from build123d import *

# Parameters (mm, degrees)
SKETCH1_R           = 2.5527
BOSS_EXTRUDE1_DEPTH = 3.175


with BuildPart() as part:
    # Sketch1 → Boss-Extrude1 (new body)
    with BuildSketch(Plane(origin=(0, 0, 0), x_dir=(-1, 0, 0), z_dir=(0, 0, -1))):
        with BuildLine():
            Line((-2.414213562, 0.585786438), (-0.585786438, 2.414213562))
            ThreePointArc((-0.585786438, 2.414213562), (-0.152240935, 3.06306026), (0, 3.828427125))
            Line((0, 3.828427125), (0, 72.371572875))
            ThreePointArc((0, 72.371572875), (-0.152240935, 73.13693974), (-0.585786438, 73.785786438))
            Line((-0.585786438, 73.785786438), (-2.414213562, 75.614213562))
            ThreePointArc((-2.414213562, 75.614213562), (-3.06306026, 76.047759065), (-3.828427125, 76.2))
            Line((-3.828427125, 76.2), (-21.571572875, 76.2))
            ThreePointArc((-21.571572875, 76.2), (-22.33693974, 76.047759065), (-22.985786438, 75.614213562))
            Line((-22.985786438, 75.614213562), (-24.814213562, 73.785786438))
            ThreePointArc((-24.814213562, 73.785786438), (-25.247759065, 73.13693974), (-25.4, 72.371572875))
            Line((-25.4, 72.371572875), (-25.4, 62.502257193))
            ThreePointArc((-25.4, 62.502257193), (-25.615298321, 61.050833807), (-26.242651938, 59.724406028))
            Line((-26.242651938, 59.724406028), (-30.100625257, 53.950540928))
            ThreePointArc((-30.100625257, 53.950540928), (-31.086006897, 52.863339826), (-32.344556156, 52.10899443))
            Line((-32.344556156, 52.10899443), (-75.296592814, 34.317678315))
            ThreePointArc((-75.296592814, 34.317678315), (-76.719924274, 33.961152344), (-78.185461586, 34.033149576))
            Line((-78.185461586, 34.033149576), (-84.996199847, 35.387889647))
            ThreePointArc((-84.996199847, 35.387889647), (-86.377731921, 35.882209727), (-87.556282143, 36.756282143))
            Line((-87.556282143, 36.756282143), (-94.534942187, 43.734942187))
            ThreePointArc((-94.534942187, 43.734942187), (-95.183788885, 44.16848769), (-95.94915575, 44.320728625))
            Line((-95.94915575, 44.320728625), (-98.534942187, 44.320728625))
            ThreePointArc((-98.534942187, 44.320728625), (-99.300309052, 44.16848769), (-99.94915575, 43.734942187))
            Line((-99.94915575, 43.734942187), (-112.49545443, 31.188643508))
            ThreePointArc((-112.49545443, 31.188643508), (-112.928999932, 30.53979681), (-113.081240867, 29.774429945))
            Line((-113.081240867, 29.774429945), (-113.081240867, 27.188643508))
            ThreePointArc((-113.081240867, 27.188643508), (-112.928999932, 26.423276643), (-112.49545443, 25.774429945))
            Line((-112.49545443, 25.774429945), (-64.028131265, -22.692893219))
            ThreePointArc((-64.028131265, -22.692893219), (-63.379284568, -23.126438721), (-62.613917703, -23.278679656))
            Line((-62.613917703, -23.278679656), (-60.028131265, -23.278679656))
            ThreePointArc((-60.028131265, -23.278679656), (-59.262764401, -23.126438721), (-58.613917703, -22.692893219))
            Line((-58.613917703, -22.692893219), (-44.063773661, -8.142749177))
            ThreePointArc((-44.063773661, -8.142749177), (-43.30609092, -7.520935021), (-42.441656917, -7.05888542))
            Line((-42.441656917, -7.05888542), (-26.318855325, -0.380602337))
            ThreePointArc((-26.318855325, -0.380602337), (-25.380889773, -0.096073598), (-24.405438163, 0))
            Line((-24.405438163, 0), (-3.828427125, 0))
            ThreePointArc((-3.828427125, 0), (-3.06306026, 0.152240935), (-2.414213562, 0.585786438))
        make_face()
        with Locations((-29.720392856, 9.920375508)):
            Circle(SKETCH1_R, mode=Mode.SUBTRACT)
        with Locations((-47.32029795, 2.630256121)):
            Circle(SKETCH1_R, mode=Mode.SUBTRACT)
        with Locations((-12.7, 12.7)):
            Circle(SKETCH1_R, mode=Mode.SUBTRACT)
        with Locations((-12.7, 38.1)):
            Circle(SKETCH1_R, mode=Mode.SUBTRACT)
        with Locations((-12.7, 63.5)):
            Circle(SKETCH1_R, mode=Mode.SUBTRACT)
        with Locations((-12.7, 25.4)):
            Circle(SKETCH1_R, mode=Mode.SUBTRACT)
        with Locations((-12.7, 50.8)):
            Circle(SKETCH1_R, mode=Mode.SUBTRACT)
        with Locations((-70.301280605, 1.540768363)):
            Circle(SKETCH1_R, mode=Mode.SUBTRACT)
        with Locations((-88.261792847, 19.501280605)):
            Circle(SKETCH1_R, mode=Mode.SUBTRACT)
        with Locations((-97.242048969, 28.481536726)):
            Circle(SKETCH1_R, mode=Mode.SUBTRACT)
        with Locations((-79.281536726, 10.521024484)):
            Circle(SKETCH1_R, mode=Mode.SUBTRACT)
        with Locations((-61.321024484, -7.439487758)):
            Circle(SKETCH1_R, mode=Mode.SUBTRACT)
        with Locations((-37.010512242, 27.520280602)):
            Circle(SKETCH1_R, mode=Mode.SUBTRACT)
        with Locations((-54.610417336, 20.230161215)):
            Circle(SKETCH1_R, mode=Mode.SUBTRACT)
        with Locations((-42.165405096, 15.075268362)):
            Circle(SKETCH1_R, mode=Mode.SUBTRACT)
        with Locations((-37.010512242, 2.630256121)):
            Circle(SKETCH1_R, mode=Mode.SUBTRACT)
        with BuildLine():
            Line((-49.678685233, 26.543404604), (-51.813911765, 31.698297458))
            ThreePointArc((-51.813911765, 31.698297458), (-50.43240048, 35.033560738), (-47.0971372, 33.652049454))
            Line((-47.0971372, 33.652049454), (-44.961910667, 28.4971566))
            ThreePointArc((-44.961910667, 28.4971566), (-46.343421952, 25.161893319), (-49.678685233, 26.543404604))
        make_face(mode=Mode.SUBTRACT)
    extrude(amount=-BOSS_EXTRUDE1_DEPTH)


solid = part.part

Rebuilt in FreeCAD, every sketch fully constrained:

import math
import FreeCAD as App
import Part
import Sketcher
from FreeCAD import Vector
Q = App.Units.Quantity

doc = App.newDocument("Part")
body = doc.addObject("PartDesign::Body", "Body")

# Sketch on XY plane
sketch1 = body.newObject("Sketcher::SketchObject", "Sketch")
sketch1.AttachmentSupport = (doc.getObject("XY_Plane"), [""])
sketch1.MapMode = "FlatFace"
sketch1.addGeometry([
    Part.LineSegment(Vector(2.4, 0.6, 0), Vector(0.6, 2.4, 0)),  # 0
    Part.ArcOfCircle(Part.Circle(Vector(2, 3.8, 0), Vector(0, 0, 1), 2), math.radians(180), math.radians(225)),  # 1
    Part.LineSegment(Vector(0, 3.8, 0), Vector(0, 72.4, 0)),  # 2
    Part.ArcOfCircle(Part.Circle(Vector(2, 72.4, 0), Vector(0, 0, 1), 2), math.radians(135), math.radians(180)),  # 3
    Part.LineSegment(Vector(0.6, 73.8, 0), Vector(2.4, 75.6, 0)),  # 4
    Part.ArcOfCircle(Part.Circle(Vector(3.8, 74.2, 0), Vector(0, 0, 1), 2), math.radians(90), math.radians(135)),  # 5
    Part.LineSegment(Vector(3.8, 76.2, 0), Vector(21.6, 76.2, 0)),  # 6
    Part.ArcOfCircle(Part.Circle(Vector(21.6, 74.2, 0), Vector(0, 0, 1), 2), math.radians(45), math.radians(90)),  # 7
    Part.LineSegment(Vector(23, 75.6, 0), Vector(24.8, 73.8, 0)),  # 8
    Part.ArcOfCircle(Part.Circle(Vector(23.4, 72.4, 0), Vector(0, 0, 1), 2), math.radians(0), math.radians(45)),  # 9
    Part.LineSegment(Vector(25.4, 72.4, 0), Vector(25.4, 62.5, 0)),  # 10
    Part.ArcOfCircle(Part.Circle(Vector(30.4, 62.5, 0), Vector(0, 0, 1), 5), math.radians(180), math.radians(214)),  # 11
    Part.LineSegment(Vector(26.2, 59.7, 0), Vector(30.1, 54, 0)),  # 12
    Part.ArcOfCircle(Part.Circle(Vector(34.3, 56.7, 0), Vector(0, 0, 1), 5), math.radians(-146), math.radians(-112)),  # 13
    Part.LineSegment(Vector(32.3, 52.1, 0), Vector(75.3, 34.3, 0)),  # 14
    Part.ArcOfCircle(Part.Circle(Vector(77.2, 38.9, 0), Vector(0, 0, 1), 5), math.radians(-113), math.radians(-79)),  # 15
    Part.LineSegment(Vector(78.2, 34, 0), Vector(85, 35.4, 0)),  # 16
    Part.ArcOfCircle(Part.Circle(Vector(84, 40.3, 0), Vector(0, 0, 1), 5), math.radians(-79), math.radians(-45)),  # 17
    Part.LineSegment(Vector(87.6, 36.8, 0), Vector(94.5, 43.7, 0)),  # 18
    Part.ArcOfCircle(Part.Circle(Vector(95.9, 42.3, 0), Vector(0, 0, 1), 2), math.radians(90), math.radians(135)),  # 19
    Part.LineSegment(Vector(95.9, 44.3, 0), Vector(98.5, 44.3, 0)),  # 20
    Part.ArcOfCircle(Part.Circle(Vector(98.5, 42.3, 0), Vector(0, 0, 1), 2), math.radians(45), math.radians(90)),  # 21
    Part.LineSegment(Vector(99.9, 43.7, 0), Vector(112.5, 31.2, 0)),  # 22
    Part.ArcOfCircle(Part.Circle(Vector(111.1, 29.8, 0), Vector(0, 0, 1), 2), math.radians(0), math.radians(45)),  # 23
    Part.LineSegment(Vector(113.1, 29.8, 0), Vector(113.1, 27.2, 0)),  # 24
    Part.ArcOfCircle(Part.Circle(Vector(111.1, 27.2, 0), Vector(0, 0, 1), 2), math.radians(-45), math.radians(0)),  # 25
    Part.LineSegment(Vector(112.5, 25.8, 0), Vector(64, -22.7, 0)),  # 26
    Part.ArcOfCircle(Part.Circle(Vector(62.6, -21.3, 0), Vector(0, 0, 1), 2), math.radians(-90), math.radians(-45)),  # 27
    Part.LineSegment(Vector(62.6, -23.3, 0), Vector(60, -23.3, 0)),  # 28
    Part.ArcOfCircle(Part.Circle(Vector(60, -21.3, 0), Vector(0, 0, 1), 2), math.radians(-135), math.radians(-90)),  # 29
    Part.LineSegment(Vector(58.6, -22.7, 0), Vector(44.1, -8.1, 0)),  # 30
    Part.ArcOfCircle(Part.Circle(Vector(40.5, -11.7, 0), Vector(0, 0, 1), 5), math.radians(45), math.radians(67)),  # 31
    Part.LineSegment(Vector(42.4, -7.1, 0), Vector(26.3, -0.4, 0)),  # 32
    Part.ArcOfCircle(Part.Circle(Vector(24.4, -5, 0), Vector(0, 0, 1), 5), math.radians(68), math.radians(90)),  # 33
    Part.LineSegment(Vector(24.4, 0, 0), Vector(3.8, 0, 0)),  # 34
    Part.ArcOfCircle(Part.Circle(Vector(3.8, 2, 0), Vector(0, 0, 1), 2), math.radians(-135), math.radians(-90)),  # 35
    Part.Circle(Vector(61.3, -7.4, 0), Vector(0, 0, 1), 2.6),  # 36
    Part.Circle(Vector(70.3, 1.5, 0), Vector(0, 0, 1), 2.6),  # 37
    Part.Circle(Vector(79.3, 10.5, 0), Vector(0, 0, 1), 2.6),  # 38
    Part.Circle(Vector(88.3, 19.5, 0), Vector(0, 0, 1), 2.6),  # 39
    Part.Circle(Vector(47.3, 2.6, 0), Vector(0, 0, 1), 2.6),  # 40
    Part.Circle(Vector(37, 2.6, 0), Vector(0, 0, 1), 2.6),  # 41
    Part.Circle(Vector(42.2, 15.1, 0), Vector(0, 0, 1), 2.6),  # 42
    Part.Circle(Vector(54.6, 20.2, 0), Vector(0, 0, 1), 2.6),  # 43
    Part.Circle(Vector(37, 27.5, 0), Vector(0, 0, 1), 2.6),  # 44
    Part.Circle(Vector(29.7, 9.9, 0), Vector(0, 0, 1), 2.6),  # 45
    Part.Circle(Vector(12.7, 12.7, 0), Vector(0, 0, 1), 2.6),  # 46
    Part.Circle(Vector(12.7, 25.4, 0), Vector(0, 0, 1), 2.6),  # 47
    Part.Circle(Vector(97.2, 28.5, 0), Vector(0, 0, 1), 2.6),  # 48
    Part.ArcOfCircle(Part.Circle(Vector(47.3, 27.5, 0), Vector(0, 0, 1), 2.6), math.radians(157), math.radians(337)),  # 49
    Part.LineSegment(Vector(49.7, 26.5, 0), Vector(51.8, 31.7, 0)),  # 50
    Part.ArcOfCircle(Part.Circle(Vector(49.5, 32.7, 0), Vector(0, 0, 1), 2.6), math.radians(-22), math.radians(157)),  # 51
    Part.LineSegment(Vector(47.1, 33.7, 0), Vector(45, 28.5, 0)),  # 52
    Part.Circle(Vector(12.7, 38.1, 0), Vector(0, 0, 1), 2.6),  # 53
    Part.Circle(Vector(12.7, 50.8, 0), Vector(0, 0, 1), 2.6),  # 54
    Part.Circle(Vector(12.7, 63.5, 0), Vector(0, 0, 1), 2.6),  # 55
], False)
sketch1.addConstraint([
    Sketcher.Constraint("Tangent", 0, 2, 1, 2),
    Sketcher.Constraint("Tangent", 1, 1, 2, 1),
    Sketcher.Constraint("Tangent", 2, 2, 3, 2),
    Sketcher.Constraint("Tangent", 3, 1, 4, 1),
    Sketcher.Constraint("Tangent", 4, 2, 5, 2),
    Sketcher.Constraint("Tangent", 5, 1, 6, 1),
    Sketcher.Constraint("Tangent", 6, 2, 7, 2),
    Sketcher.Constraint("Tangent", 7, 1, 8, 1),
    Sketcher.Constraint("Tangent", 8, 2, 9, 2),
    Sketcher.Constraint("Tangent", 9, 1, 10, 1),
    Sketcher.Constraint("Tangent", 10, 2, 11, 1),
    Sketcher.Constraint("Tangent", 11, 2, 12, 1),
    Sketcher.Constraint("Tangent", 12, 2, 13, 1),
    Sketcher.Constraint("Tangent", 13, 2, 14, 1),
    Sketcher.Constraint("Tangent", 14, 2, 15, 1),
    Sketcher.Constraint("Tangent", 15, 2, 16, 1),
    Sketcher.Constraint("Tangent", 16, 2, 17, 1),
    Sketcher.Constraint("Tangent", 17, 2, 18, 1),
    Sketcher.Constraint("Tangent", 18, 2, 19, 2),
    Sketcher.Constraint("Tangent", 19, 1, 20, 1),
    Sketcher.Constraint("Tangent", 20, 2, 21, 2),
    Sketcher.Constraint("Tangent", 21, 1, 22, 1),
    Sketcher.Constraint("Tangent", 22, 2, 23, 2),
    Sketcher.Constraint("Tangent", 23, 1, 24, 1),
    Sketcher.Constraint("Tangent", 24, 2, 25, 2),
    Sketcher.Constraint("Tangent", 25, 1, 26, 1),
    Sketcher.Constraint("Tangent", 26, 2, 27, 2),
    Sketcher.Constraint("Tangent", 27, 1, 28, 1),
    Sketcher.Constraint("Tangent", 28, 2, 29, 2),
    Sketcher.Constraint("Tangent", 29, 1, 30, 1),
    Sketcher.Constraint("Tangent", 30, 2, 31, 1),
    Sketcher.Constraint("Tangent", 31, 2, 32, 1),
    Sketcher.Constraint("Tangent", 32, 2, 33, 1),
    Sketcher.Constraint("Tangent", 33, 2, 34, 1),
    Sketcher.Constraint("Tangent", 34, 2, 35, 2),
    Sketcher.Constraint("Tangent", 35, 1, 0, 1),
    Sketcher.Constraint("Tangent", 49, 2, 50, 1),
    Sketcher.Constraint("Tangent", 50, 2, 51, 1),
    Sketcher.Constraint("Tangent", 51, 2, 52, 1),
    Sketcher.Constraint("Tangent", 52, 2, 49, 1),
    Sketcher.Constraint("Vertical", 2),
    Sketcher.Constraint("Horizontal", 6),
    Sketcher.Constraint("Vertical", 10),
    Sketcher.Constraint("Horizontal", 20),
    Sketcher.Constraint("Vertical", 24),
    Sketcher.Constraint("Horizontal", 28),
    Sketcher.Constraint("Horizontal", 34),
    Sketcher.Constraint("Equal", 1, 3),
    Sketcher.Constraint("Equal", 3, 5),
    Sketcher.Constraint("Equal", 5, 7),
    Sketcher.Constraint("Equal", 7, 9),
    Sketcher.Constraint("Equal", 11, 13),
    Sketcher.Constraint("Equal", 13, 15),
    Sketcher.Constraint("Equal", 15, 17),
    Sketcher.Constraint("Equal", 9, 19),
    Sketcher.Constraint("Equal", 19, 21),
    Sketcher.Constraint("Equal", 21, 23),
    Sketcher.Constraint("Equal", 23, 25),
    Sketcher.Constraint("Equal", 25, 27),
    Sketcher.Constraint("Equal", 27, 29),
    Sketcher.Constraint("Equal", 17, 31),
    Sketcher.Constraint("Equal", 31, 33),
    Sketcher.Constraint("Equal", 29, 35),
    Sketcher.Constraint("Equal", 36, 37),
    Sketcher.Constraint("Equal", 37, 38),
    Sketcher.Constraint("Equal", 38, 39),
    Sketcher.Constraint("Equal", 39, 40),
    Sketcher.Constraint("Equal", 40, 41),
    Sketcher.Constraint("Equal", 41, 42),
    Sketcher.Constraint("Equal", 42, 43),
    Sketcher.Constraint("Equal", 43, 44),
    Sketcher.Constraint("Equal", 44, 45),
    Sketcher.Constraint("Equal", 45, 46),
    Sketcher.Constraint("Equal", 46, 47),
    Sketcher.Constraint("Equal", 47, 48),
    Sketcher.Constraint("Equal", 48, 49),
    Sketcher.Constraint("Equal", 49, 51),
    Sketcher.Constraint("Equal", 51, 53),
    Sketcher.Constraint("Equal", 53, 54),
    Sketcher.Constraint("Equal", 54, 55),
    Sketcher.Constraint("PointOnObject", 1, 1, -2),
    Sketcher.Constraint("PointOnObject", 33, 2, -1),
    Sketcher.Constraint("Perpendicular", 0, 4),
    Sketcher.Constraint("Perpendicular", 4, 8),
    Sketcher.Constraint("Perpendicular", 8, 18),
    Sketcher.Constraint("Perpendicular", 18, 22),
    Sketcher.Constraint("Perpendicular", 22, 26),
    Sketcher.Constraint("Perpendicular", 26, 30),
    Sketcher.Constraint("Parallel", 14, 32),
    Sketcher.Constraint("Perpendicular", 32, 50),
    Sketcher.Constraint("Horizontal", 3, 3, 9, 3),
    Sketcher.Constraint("Horizontal", 40, 3, 41, 3),
    Sketcher.Constraint("Horizontal", 44, 3, 49, 3),
    Sketcher.Constraint("Horizontal", 4, 2, 7, 1),
    Sketcher.Constraint("Vertical", 5, 3, 35, 3),
    Sketcher.Constraint("Vertical", 41, 3, 44, 3),
    Sketcher.Constraint("Vertical", 46, 3, 47, 3),
    Sketcher.Constraint("Vertical", 40, 3, 49, 3),
    Sketcher.Constraint("Vertical", 47, 3, 53, 3),
    Sketcher.Constraint("Vertical", 53, 3, 54, 3),
    Sketcher.Constraint("Vertical", 54, 3, 55, 3),
    Sketcher.Constraint("Equal", 20, 28),
    Sketcher.Constraint("Equal", 28, 24),
    Sketcher.Constraint("Equal", 12, 16),
    Sketcher.Constraint("Radius", 1, Q("2 mm")),
    Sketcher.Constraint("Radius", 11, Q("5 mm")),
    Sketcher.Constraint("Angle", 14, Q("-22.5 deg")),
    Sketcher.Constraint("Diameter", 36, Q("5.1054 mm")),
    Sketcher.Constraint("DistanceY", -1, 1, 5, 3, Q("74.2 mm")),
    Sketcher.Constraint("DistanceX", -1, 1, 9, 3, Q("23.4 mm")),
    Sketcher.Constraint("DistanceX", -1, 1, 46, 3, Q("12.7 mm")),
    Sketcher.Constraint("DistanceY", -1, 1, 46, 3, Q("12.7 mm")),
    Sketcher.Constraint("DistanceY", -1, 1, 47, 3, Q("25.4 mm")),
    Sketcher.Constraint("DistanceY", -1, 1, 53, 3, Q("38.1 mm")),
    Sketcher.Constraint("DistanceY", -1, 1, 54, 3, Q("50.8 mm")),
    Sketcher.Constraint("DistanceY", -1, 1, 55, 3, Q("63.5 mm")),
    Sketcher.Constraint("Angle", 12, Q("-56.25 deg")),
    Sketcher.Constraint("Angle", 16, Q("11.25 deg")),
    Sketcher.Constraint("DistanceX", 34, 2, 34, 1, Q("20.577011 mm")),
    Sketcher.Constraint("DistanceX", -1, 1, 16, 2, Q("84.9962 mm")),
    Sketcher.Constraint("Distance", 12, Q("6.944169 mm")),
    Sketcher.Constraint("Distance", 30, Q("20.577011 mm")),
    Sketcher.Constraint("DistanceX", 6, 1, 6, 2, Q("17.743146 mm")),
    Sketcher.Constraint("DistanceX", 20, 1, 20, 2, Q("2.585786 mm")),
    Sketcher.Constraint("DistanceY", 10, 2, 10, 1, Q("9.869316 mm")),
    Sketcher.Constraint("DistanceY", -1, 1, 19, 3, Q("42.320729 mm")),
    Sketcher.Constraint("DistanceX", -1, 1, 23, 3, Q("111.081241 mm")),
    Sketcher.Constraint("DistanceX", -1, 1, 37, 3, Q("70.301281 mm")),
    Sketcher.Constraint("DistanceY", -1, 1, 37, 3, Q("1.540768 mm")),
    Sketcher.Constraint("DistanceY", -1, 1, 39, 3, Q("19.501281 mm")),
    Sketcher.Constraint("DistanceY", -1, 1, 42, 3, Q("15.075268 mm")),
    Sketcher.Constraint("DistanceY", -1, 1, 43, 3, Q("20.230161 mm")),
    Sketcher.Constraint("DistanceY", -1, 1, 44, 3, Q("27.520281 mm")),
    Sketcher.Constraint("DistanceX", -1, 1, 48, 3, Q("97.242049 mm")),
    Sketcher.Constraint("DistanceX", -1, 1, 50, 2, Q("51.813912 mm")),
    Sketcher.Constraint("DistanceY", -1, 1, 51, 2, Q("33.652049 mm")),
    Sketcher.Constraint("DistanceX", -1, 1, 36, 3, Q("61.321024 mm")),
    Sketcher.Constraint("DistanceY", 36, 3, -1, 1, Q("7.439488 mm")),
    Sketcher.Constraint("DistanceX", -1, 1, 38, 3, Q("79.281537 mm")),
    Sketcher.Constraint("DistanceY", -1, 1, 38, 3, Q("10.521024 mm")),
    Sketcher.Constraint("DistanceX", -1, 1, 39, 3, Q("88.261793 mm")),
    Sketcher.Constraint("DistanceY", -1, 1, 40, 3, Q("2.630256 mm")),
    Sketcher.Constraint("DistanceX", -1, 1, 41, 3, Q("37.010512 mm")),
    Sketcher.Constraint("DistanceX", -1, 1, 42, 3, Q("42.165405 mm")),
    Sketcher.Constraint("DistanceX", -1, 1, 43, 3, Q("54.610417 mm")),
    Sketcher.Constraint("DistanceX", -1, 1, 45, 3, Q("29.720393 mm")),
    Sketcher.Constraint("DistanceY", -1, 1, 45, 3, Q("9.920376 mm")),
    Sketcher.Constraint("DistanceY", -1, 1, 48, 3, Q("28.481537 mm")),
])
pad1 = body.newObject("PartDesign::Pad", "Pad")
pad1.Profile = sketch1
pad1.Length = 3.175

doc.recompute()
